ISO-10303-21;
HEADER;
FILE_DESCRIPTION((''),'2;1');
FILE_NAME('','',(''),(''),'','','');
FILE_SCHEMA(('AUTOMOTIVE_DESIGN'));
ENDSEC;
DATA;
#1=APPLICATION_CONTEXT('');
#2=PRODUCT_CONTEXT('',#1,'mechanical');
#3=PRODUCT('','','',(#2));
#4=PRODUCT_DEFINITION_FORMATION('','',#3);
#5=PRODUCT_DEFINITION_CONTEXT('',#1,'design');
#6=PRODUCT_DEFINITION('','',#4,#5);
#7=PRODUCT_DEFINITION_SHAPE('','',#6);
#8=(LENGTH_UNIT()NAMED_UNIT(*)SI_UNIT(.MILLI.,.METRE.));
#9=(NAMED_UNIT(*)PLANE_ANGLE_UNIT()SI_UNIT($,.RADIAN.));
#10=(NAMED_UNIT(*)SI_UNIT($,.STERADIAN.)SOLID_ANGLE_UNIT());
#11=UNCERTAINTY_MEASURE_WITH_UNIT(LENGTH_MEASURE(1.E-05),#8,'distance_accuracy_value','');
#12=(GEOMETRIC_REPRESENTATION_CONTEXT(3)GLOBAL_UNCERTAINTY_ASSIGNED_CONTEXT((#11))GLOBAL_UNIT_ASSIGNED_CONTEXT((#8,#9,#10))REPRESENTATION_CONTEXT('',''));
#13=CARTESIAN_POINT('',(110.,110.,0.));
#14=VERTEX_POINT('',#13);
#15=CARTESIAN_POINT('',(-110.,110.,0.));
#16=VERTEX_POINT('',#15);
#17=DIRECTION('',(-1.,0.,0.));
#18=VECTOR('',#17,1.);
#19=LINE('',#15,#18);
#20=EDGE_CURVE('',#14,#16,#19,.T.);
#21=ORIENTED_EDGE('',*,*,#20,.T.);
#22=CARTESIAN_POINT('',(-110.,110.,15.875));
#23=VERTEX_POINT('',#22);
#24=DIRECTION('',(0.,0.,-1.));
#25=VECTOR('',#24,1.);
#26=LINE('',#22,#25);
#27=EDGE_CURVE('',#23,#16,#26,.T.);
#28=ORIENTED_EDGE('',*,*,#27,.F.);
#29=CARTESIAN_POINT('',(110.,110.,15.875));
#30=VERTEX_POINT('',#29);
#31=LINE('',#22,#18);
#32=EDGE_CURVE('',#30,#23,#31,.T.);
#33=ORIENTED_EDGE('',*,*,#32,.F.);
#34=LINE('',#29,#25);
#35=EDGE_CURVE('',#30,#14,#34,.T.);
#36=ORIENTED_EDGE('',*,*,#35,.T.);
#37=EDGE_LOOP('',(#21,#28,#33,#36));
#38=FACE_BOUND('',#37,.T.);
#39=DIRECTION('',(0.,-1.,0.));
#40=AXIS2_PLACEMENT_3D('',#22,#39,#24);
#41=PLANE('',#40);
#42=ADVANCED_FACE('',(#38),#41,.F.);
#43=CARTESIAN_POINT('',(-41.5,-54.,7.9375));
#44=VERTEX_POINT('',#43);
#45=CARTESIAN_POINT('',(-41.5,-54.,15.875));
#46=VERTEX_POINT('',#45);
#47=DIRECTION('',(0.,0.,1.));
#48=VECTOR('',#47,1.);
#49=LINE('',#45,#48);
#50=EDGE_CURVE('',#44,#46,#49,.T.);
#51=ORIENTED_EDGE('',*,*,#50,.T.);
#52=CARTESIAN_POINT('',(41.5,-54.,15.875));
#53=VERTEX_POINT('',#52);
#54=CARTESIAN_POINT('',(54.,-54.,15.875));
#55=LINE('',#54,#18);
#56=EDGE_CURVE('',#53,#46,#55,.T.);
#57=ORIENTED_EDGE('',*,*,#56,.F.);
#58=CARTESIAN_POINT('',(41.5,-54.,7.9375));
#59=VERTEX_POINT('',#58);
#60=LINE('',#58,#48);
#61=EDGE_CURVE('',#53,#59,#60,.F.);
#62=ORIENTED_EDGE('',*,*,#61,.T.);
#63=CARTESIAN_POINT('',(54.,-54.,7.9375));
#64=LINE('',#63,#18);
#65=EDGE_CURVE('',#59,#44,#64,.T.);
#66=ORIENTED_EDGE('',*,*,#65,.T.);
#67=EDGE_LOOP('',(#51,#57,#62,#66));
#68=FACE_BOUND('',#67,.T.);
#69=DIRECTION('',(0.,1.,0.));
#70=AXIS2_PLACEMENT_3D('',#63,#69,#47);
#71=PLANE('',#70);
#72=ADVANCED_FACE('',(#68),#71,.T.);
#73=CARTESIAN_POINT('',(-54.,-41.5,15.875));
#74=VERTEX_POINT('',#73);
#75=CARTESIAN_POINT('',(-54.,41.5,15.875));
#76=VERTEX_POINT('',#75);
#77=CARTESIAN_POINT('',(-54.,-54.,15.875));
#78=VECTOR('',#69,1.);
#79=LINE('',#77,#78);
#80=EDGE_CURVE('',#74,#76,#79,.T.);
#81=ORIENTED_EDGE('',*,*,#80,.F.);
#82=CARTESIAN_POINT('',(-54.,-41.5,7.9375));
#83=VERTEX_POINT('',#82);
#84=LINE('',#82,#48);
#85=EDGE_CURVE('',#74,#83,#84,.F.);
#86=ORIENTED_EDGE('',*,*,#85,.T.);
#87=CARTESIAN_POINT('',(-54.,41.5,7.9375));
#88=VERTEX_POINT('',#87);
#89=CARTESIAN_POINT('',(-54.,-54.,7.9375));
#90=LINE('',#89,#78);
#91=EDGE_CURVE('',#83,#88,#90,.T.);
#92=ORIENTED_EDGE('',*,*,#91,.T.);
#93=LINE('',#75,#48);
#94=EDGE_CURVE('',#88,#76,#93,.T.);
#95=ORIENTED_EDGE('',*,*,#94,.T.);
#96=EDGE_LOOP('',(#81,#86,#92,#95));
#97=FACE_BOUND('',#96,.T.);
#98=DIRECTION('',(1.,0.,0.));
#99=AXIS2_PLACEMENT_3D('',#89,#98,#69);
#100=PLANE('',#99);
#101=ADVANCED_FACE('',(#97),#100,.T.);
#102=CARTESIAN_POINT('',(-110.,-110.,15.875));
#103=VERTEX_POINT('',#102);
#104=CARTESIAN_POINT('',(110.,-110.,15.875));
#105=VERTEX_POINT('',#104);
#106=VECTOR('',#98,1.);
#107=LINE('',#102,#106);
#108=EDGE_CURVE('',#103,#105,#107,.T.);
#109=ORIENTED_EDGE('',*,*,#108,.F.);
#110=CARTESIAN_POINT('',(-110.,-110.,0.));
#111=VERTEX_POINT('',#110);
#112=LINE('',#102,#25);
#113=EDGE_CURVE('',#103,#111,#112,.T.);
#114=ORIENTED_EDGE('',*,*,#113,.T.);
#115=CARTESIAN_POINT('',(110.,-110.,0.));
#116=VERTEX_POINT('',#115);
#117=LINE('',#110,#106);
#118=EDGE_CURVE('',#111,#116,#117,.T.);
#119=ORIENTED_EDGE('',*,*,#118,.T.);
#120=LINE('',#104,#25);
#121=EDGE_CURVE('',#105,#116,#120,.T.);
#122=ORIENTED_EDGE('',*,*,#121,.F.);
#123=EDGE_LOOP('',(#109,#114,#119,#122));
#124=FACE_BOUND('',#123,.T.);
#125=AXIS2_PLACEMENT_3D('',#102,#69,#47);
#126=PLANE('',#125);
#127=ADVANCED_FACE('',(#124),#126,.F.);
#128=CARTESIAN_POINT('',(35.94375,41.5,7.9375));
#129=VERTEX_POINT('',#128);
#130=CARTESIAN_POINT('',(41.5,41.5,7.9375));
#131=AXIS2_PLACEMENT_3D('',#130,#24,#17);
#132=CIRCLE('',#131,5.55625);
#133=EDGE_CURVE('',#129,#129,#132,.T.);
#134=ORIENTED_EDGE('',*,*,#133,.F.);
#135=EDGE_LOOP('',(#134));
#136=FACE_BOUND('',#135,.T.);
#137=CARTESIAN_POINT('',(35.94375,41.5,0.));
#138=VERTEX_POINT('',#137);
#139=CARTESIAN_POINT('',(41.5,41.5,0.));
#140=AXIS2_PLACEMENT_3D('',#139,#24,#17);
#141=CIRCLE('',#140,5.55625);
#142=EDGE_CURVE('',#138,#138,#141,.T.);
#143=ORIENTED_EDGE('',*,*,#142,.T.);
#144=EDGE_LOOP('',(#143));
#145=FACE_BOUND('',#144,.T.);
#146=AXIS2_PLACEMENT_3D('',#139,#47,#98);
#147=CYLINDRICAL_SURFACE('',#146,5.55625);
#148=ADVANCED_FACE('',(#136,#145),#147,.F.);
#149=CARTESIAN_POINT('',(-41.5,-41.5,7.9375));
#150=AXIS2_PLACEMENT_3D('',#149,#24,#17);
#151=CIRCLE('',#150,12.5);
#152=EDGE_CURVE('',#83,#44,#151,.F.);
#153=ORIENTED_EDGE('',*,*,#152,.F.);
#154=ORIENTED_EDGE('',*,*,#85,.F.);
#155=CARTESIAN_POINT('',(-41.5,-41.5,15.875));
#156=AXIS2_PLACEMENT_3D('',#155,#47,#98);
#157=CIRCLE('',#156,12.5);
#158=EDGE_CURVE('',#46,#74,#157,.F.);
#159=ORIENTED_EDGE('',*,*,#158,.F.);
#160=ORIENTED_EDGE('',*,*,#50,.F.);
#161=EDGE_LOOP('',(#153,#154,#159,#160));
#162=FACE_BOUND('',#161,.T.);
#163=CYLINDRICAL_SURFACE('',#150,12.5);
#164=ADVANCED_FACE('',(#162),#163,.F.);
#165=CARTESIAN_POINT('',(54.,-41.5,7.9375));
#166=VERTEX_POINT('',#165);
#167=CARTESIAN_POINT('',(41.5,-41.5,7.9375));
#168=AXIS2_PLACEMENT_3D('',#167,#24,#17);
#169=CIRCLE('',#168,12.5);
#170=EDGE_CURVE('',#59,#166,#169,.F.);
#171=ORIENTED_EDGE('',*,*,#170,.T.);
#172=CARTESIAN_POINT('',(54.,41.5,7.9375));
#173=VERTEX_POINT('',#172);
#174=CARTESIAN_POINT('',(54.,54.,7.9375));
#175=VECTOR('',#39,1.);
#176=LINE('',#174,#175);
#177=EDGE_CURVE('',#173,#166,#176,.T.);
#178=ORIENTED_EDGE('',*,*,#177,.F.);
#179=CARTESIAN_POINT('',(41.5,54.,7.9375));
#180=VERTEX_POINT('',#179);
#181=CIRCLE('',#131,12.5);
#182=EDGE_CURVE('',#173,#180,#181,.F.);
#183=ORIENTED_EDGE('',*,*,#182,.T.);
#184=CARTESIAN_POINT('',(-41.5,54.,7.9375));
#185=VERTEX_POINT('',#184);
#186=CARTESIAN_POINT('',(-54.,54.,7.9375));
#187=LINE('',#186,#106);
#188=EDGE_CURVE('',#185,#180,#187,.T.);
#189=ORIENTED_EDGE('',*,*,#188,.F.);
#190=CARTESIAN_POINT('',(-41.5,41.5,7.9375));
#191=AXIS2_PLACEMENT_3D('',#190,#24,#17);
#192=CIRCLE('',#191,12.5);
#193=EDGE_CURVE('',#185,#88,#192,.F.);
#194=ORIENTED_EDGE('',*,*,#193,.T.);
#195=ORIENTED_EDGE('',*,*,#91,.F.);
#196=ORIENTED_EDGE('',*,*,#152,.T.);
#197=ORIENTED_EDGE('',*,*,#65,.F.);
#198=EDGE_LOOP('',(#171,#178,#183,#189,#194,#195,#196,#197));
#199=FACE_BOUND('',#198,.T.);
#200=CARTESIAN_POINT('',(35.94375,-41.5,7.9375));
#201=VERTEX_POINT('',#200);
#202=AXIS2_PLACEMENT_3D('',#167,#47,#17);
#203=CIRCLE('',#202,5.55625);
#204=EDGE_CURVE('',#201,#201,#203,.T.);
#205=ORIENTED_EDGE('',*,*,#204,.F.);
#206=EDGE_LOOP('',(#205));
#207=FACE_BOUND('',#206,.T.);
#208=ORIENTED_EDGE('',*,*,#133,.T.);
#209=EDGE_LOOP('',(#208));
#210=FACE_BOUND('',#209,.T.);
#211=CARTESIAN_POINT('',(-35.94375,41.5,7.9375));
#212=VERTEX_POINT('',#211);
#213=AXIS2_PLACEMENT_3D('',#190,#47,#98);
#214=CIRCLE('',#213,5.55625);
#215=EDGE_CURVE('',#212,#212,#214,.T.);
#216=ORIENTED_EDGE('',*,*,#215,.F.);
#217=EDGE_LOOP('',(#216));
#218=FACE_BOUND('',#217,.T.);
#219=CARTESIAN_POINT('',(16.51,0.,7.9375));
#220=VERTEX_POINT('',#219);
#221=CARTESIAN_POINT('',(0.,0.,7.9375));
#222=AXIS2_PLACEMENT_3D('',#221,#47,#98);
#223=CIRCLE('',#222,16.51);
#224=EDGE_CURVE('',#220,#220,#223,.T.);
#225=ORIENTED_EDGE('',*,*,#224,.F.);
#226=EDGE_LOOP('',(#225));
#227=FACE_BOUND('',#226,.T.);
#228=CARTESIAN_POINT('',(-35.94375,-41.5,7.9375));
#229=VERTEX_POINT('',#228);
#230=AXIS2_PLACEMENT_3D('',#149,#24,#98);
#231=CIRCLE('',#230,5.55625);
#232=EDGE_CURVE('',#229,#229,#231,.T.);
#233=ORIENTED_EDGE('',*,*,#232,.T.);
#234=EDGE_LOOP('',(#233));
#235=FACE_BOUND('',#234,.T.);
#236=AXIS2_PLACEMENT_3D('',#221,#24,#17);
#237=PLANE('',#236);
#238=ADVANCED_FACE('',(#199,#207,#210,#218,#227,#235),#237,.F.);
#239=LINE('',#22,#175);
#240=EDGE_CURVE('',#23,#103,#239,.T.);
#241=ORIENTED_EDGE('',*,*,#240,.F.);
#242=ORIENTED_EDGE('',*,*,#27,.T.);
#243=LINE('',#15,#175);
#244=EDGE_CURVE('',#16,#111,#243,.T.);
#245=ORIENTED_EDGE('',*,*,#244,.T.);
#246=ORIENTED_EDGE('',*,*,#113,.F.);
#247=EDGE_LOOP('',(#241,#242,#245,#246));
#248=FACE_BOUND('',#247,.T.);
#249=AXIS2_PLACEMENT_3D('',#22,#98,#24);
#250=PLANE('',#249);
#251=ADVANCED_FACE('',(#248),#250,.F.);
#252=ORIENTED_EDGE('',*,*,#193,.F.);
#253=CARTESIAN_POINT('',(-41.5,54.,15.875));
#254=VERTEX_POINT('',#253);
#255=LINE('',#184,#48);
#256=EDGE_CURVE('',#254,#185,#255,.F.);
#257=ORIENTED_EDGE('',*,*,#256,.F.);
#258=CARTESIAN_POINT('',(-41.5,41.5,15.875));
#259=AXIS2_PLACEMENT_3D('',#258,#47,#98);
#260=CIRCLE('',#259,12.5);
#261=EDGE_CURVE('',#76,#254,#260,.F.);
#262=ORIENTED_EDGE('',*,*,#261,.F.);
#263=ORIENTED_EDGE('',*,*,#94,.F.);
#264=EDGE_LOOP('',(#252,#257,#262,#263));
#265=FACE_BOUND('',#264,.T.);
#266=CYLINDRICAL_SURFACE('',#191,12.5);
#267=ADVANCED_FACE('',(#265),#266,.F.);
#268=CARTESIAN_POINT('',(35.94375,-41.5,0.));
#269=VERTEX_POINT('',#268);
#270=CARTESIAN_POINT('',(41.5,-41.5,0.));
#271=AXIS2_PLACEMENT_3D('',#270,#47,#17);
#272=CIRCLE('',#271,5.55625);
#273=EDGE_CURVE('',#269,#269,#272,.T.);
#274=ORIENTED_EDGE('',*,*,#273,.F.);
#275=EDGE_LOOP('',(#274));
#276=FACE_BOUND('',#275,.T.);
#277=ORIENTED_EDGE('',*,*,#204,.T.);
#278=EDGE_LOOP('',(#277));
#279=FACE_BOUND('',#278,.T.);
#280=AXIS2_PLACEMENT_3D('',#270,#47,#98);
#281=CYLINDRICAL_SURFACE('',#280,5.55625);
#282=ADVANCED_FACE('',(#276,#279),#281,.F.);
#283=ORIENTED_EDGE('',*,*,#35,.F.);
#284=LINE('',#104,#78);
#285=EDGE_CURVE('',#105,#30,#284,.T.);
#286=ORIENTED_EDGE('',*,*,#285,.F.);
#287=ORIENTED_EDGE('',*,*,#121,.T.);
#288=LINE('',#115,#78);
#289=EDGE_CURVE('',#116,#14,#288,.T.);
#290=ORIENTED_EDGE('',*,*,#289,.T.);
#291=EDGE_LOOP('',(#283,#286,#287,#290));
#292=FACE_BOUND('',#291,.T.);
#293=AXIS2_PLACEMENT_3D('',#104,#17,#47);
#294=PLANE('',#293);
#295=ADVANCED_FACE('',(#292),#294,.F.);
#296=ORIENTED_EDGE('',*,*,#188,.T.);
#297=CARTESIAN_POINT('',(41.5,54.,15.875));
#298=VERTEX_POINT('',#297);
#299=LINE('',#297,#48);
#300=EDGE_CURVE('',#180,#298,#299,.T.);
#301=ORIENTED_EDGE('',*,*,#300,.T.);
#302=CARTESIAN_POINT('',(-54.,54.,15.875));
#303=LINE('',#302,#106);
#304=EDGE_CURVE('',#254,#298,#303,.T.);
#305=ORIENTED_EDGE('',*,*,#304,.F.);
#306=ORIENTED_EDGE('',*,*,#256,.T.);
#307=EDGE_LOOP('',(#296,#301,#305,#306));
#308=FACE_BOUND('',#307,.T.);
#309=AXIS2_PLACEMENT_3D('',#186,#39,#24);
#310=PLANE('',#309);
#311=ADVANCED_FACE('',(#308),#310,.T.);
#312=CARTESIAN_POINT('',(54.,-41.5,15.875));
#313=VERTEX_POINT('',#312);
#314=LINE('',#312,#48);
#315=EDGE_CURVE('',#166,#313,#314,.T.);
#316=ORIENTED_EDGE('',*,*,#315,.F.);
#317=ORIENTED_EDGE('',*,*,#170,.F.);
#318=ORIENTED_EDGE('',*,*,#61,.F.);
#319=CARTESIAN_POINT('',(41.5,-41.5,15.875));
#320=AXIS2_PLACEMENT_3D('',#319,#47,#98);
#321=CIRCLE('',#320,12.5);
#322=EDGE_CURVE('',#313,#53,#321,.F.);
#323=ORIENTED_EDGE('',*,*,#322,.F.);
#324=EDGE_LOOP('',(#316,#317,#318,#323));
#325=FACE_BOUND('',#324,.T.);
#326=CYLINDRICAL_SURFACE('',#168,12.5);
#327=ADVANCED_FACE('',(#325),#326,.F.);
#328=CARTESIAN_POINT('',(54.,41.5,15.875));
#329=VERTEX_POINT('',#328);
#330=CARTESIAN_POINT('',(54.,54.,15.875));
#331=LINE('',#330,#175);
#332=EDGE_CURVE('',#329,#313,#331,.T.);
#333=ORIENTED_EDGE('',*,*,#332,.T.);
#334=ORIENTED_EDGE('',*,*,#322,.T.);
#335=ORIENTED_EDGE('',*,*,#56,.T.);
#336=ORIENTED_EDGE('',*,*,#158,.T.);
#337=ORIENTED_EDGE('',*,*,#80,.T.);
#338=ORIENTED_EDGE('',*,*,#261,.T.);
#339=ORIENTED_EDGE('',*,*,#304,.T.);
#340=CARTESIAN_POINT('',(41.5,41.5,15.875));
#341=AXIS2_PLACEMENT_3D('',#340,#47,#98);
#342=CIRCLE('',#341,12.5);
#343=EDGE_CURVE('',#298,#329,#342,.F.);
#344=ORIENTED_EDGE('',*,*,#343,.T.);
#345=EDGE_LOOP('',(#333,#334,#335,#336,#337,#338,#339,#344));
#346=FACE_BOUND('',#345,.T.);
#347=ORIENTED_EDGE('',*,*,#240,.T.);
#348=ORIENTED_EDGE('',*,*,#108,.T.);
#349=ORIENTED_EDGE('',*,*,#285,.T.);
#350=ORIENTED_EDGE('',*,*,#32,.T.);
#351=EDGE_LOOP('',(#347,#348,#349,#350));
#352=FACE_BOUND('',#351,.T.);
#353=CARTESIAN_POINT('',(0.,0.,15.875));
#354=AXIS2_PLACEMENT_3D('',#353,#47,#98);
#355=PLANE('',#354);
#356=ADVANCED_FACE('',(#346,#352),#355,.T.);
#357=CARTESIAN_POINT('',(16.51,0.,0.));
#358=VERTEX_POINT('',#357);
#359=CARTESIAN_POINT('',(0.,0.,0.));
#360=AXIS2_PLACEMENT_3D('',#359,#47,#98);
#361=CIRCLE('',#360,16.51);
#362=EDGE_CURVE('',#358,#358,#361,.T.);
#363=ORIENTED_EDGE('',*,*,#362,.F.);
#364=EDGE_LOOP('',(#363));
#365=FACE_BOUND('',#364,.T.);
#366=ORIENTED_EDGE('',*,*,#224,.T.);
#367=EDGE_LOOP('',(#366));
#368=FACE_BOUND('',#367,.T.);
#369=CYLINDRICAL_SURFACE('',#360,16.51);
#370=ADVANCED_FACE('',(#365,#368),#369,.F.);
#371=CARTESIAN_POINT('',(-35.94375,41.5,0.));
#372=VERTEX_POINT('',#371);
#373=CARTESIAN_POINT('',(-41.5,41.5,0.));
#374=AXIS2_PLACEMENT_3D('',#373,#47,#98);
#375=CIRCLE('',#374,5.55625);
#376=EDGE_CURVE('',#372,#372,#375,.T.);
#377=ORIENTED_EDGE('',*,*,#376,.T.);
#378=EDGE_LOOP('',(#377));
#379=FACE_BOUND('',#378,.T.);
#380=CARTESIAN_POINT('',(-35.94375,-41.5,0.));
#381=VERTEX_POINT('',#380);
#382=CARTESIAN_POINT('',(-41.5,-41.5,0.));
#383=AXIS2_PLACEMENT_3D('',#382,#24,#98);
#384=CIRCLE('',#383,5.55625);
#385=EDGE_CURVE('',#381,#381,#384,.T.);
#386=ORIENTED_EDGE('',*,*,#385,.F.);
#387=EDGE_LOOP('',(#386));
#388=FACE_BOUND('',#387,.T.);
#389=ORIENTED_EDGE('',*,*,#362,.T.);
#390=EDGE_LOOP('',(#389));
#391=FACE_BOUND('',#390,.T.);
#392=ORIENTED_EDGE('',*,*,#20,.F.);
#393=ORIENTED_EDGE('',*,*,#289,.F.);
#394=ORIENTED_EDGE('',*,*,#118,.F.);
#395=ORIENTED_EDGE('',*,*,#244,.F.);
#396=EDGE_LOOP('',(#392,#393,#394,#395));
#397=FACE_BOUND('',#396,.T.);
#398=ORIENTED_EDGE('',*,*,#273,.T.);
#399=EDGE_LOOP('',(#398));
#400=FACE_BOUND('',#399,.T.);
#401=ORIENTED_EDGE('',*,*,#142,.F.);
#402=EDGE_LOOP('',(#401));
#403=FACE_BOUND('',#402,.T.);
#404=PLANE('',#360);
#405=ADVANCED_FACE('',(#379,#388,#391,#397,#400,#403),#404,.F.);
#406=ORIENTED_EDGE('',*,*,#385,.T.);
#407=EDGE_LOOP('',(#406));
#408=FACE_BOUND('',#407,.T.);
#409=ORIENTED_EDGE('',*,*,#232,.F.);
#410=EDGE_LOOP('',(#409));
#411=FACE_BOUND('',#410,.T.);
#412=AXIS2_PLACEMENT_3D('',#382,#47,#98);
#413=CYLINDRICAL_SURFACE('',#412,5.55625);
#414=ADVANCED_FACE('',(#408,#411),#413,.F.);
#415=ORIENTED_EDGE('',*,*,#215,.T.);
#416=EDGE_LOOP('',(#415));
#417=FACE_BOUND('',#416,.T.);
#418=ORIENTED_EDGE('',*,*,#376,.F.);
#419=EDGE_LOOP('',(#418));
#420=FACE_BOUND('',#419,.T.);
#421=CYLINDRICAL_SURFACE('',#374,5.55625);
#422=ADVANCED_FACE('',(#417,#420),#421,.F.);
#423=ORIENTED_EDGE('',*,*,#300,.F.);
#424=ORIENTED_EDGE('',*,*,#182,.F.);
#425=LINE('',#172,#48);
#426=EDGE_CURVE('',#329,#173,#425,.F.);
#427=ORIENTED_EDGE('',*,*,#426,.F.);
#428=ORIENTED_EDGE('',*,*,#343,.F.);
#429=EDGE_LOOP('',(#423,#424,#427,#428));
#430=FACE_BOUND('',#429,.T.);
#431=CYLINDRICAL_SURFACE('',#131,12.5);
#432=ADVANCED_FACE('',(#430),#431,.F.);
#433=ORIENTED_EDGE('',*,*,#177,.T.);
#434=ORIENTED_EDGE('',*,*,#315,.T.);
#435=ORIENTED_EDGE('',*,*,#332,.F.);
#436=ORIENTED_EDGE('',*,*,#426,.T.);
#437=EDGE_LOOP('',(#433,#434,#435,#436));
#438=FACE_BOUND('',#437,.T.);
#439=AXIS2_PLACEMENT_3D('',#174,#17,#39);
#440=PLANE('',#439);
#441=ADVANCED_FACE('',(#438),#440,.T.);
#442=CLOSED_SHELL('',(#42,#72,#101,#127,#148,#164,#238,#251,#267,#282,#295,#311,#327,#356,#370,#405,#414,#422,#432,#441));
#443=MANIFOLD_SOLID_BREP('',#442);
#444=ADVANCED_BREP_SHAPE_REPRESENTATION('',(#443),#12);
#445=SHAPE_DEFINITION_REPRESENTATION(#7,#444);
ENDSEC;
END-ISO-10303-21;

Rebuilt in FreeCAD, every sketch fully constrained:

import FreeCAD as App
import Part
import Sketcher
Q = App.Units.Quantity


def edges_at(feature, points):
    """Names of the edges that pass closest to the given points."""
    edges = feature.Shape.Edges
    near = lambda p: min(range(len(edges)), key=lambda i: edges[i].distToShape(Part.Vertex(*p))[0])
    return sorted({f"Edge{near(p) + 1}" for p in points})


def add_polygon(sketch, points):
    """Adds a closed chain of lines whose ends are joined by coincident constraints."""
    first, n = sketch.GeometryCount, len(points)
    for a, b in zip(points, points[1:] + points[:1]):
        sketch.addGeometry(Part.LineSegment(App.Vector(*a, 0), App.Vector(*b, 0)), False)
    for i in range(n):
        sketch.addConstraint(Sketcher.Constraint("Coincident", first + i, 2, first + (i + 1) % n, 1))

doc = App.newDocument("Part")
params = doc.addObject("Spreadsheet::Sheet", "Params")
for row, (alias, value) in enumerate([
    ("pad1_length", "0.625 in"),
    ("pocket1_length", "0.3125 in"),
    ("fillet_radius", "12.5 mm"),
    ("sketch3_diameter", "0.4375 in"),
    ("sketch4_diameter", "0.4375 in"),
    ("sketch5_diameter", "1.3 in"),
], start=1):
    params.set(f"A{row}", alias)
    params.set(f"B{row}", "=" + value)
    params.setAlias(f"B{row}", alias)

body = doc.addObject("PartDesign::Body", "Body")

# Sketch on XY plane
sketch1 = body.newObject("Sketcher::SketchObject", "Sketch")
sketch1.AttachmentSupport = (doc.getObject("XY_Plane"), [""])
sketch1.MapMode = "FlatFace"
add_polygon(sketch1, [(-110, 110), (-110, -110), (110, -110), (110, 110)])  # lines 0-3
sketch1.addConstraint(Sketcher.Constraint("Vertical", 0))
sketch1.addConstraint(Sketcher.Constraint("Horizontal", 1))
sketch1.addConstraint(Sketcher.Constraint("Vertical", 2))
sketch1.addConstraint(Sketcher.Constraint("Horizontal", 3))
sketch1.addConstraint(Sketcher.Constraint("Symmetric", 0, 2, 2, 2, -1, 1))
sketch1.addConstraint(Sketcher.Constraint("Equal", 3, 0))
sketch1.addConstraint(Sketcher.Constraint("DistanceX", 1, 1, 1, 2, Q("220 mm")))
pad1 = body.newObject("PartDesign::Pad", "Pad")
pad1.Profile = sketch1
pad1.setExpression("Length", "Params.pad1_length")

# Sketch on XY plane
sketch2 = body.newObject("Sketcher::SketchObject", "Sketch001")
sketch2.AttachmentSupport = (doc.getObject("XY_Plane"), [""])
sketch2.MapMode = "FlatFace"
sketch2.AttachmentOffset = App.Placement(App.Vector(0, 0, 0.625 * 25.4), App.Rotation())
add_polygon(sketch2, [(-54, 54), (-54, -54), (54, -54), (54, 54)])  # lines 0-3
sketch2.addConstraint(Sketcher.Constraint("Vertical", 0))
sketch2.addConstraint(Sketcher.Constraint("Horizontal", 1))
sketch2.addConstraint(Sketcher.Constraint("Vertical", 2))
sketch2.addConstraint(Sketcher.Constraint("Horizontal", 3))
sketch2.addConstraint(Sketcher.Constraint("Symmetric", 0, 2, 2, 2, -1, 1))
sketch2.addConstraint(Sketcher.Constraint("Equal", 3, 0))
sketch2.addConstraint(Sketcher.Constraint("DistanceX", 1, 1, 1, 2, Q("108 mm")))
pocket1 = body.newObject("PartDesign::Pocket", "Pocket")
pocket1.Profile = sketch2
pocket1.setExpression("Length", "Params.pocket1_length")
doc.recompute()

fillet = body.newObject("PartDesign::Fillet", "Fillet")
fillet.Base = (pocket1, edges_at(pocket1, [
    (-54, -54, 11.906),
    (-54, 54, 11.906),
    (54, 54, 11.906),
    (54, -54, 11.906),
]))
fillet.setExpression("Radius", "Params.fillet_radius")

# Sketch on XY plane
sketch3 = body.newObject("Sketcher::SketchObject", "Sketch002")
sketch3.AttachmentSupport = (doc.getObject("XY_Plane"), [""])
sketch3.MapMode = "FlatFace"
sketch3.AttachmentOffset = App.Placement(App.Vector(0, 0, 0.3125 * 25.4), App.Rotation())
sketch3.addGeometry(Part.Circle(App.Vector(-42, 42, 0), App.Vector(0, 0, 1), 6), False)
sketch3.addConstraint(Sketcher.Constraint("Diameter", 0, Q("0.4375 in")))
sketch3.addConstraint(Sketcher.Constraint("DistanceX", 0, 3, -1, 1, Q("41.5 mm")))
sketch3.addConstraint(Sketcher.Constraint("DistanceY", -1, 1, 0, 3, Q("41.5 mm")))
sketch3.setExpression("Constraints[0]", "Params.sketch3_diameter")
pocket2 = body.newObject("PartDesign::Pocket", "Pocket001")
pocket2.Profile = sketch3
pocket2.Type = "ThroughAll"
doc.recompute()

mirrored = body.newObject("PartDesign::Mirrored", "Mirrored")
mirrored.Originals = [pocket2]
mirrored.MirrorPlane = (doc.getObject("XZ_Plane"), [""])
body.Tip = mirrored
doc.recompute()

mirrored2 = body.newObject("PartDesign::Mirrored", "Mirrored001")
mirrored2.Originals = [pocket2]
mirrored2.MirrorPlane = (doc.getObject("YZ_Plane"), [""])
body.Tip = mirrored2

# Sketch on XY plane
sketch4 = body.newObject("Sketcher::SketchObject", "Sketch003")
sketch4.AttachmentSupport = (doc.getObject("XY_Plane"), [""])
sketch4.MapMode = "FlatFace"
sketch4.AttachmentOffset = App.Placement(App.Vector(0, 0, 0.3125 * 25.4), App.Rotation())
sketch4.addGeometry(Part.Circle(App.Vector(42, -42, 0), App.Vector(0, 0, 1), 6), False)
sketch4.addConstraint(Sketcher.Constraint("Diameter", 0, Q("0.4375 in")))
sketch4.addConstraint(Sketcher.Constraint("DistanceX", -1, 1, 0, 3, Q("41.5 mm")))
sketch4.addConstraint(Sketcher.Constraint("DistanceY", 0, 3, -1, 1, Q("41.5 mm")))
sketch4.setExpression("Constraints[0]", "Params.sketch4_diameter")
pocket3 = body.newObject("PartDesign::Pocket", "Pocket002")
pocket3.Profile = sketch4
pocket3.Type = "ThroughAll"

# Sketch on XY plane
sketch5 = body.newObject("Sketcher::SketchObject", "Sketch004")
sketch5.AttachmentSupport = (doc.getObject("XY_Plane"), [""])
sketch5.MapMode = "FlatFace"
sketch5.AttachmentOffset = App.Placement(App.Vector(0, 0, 0.3125 * 25.4), App.Rotation())
sketch5.addGeometry(Part.Circle(App.Vector(0, 0, 0), App.Vector(0, 0, 1), 17), False)
sketch5.addConstraint(Sketcher.Constraint("Coincident", 0, 3, -1, 1))
sketch5.addConstraint(Sketcher.Constraint("Diameter", 0, Q("1.3 in")))
sketch5.setExpression("Constraints[1]", "Params.sketch5_diameter")
pocket4 = body.newObject("PartDesign::Pocket", "Pocket003")
pocket4.Profile = sketch5
pocket4.Type = "ThroughAll"

doc.recompute()
